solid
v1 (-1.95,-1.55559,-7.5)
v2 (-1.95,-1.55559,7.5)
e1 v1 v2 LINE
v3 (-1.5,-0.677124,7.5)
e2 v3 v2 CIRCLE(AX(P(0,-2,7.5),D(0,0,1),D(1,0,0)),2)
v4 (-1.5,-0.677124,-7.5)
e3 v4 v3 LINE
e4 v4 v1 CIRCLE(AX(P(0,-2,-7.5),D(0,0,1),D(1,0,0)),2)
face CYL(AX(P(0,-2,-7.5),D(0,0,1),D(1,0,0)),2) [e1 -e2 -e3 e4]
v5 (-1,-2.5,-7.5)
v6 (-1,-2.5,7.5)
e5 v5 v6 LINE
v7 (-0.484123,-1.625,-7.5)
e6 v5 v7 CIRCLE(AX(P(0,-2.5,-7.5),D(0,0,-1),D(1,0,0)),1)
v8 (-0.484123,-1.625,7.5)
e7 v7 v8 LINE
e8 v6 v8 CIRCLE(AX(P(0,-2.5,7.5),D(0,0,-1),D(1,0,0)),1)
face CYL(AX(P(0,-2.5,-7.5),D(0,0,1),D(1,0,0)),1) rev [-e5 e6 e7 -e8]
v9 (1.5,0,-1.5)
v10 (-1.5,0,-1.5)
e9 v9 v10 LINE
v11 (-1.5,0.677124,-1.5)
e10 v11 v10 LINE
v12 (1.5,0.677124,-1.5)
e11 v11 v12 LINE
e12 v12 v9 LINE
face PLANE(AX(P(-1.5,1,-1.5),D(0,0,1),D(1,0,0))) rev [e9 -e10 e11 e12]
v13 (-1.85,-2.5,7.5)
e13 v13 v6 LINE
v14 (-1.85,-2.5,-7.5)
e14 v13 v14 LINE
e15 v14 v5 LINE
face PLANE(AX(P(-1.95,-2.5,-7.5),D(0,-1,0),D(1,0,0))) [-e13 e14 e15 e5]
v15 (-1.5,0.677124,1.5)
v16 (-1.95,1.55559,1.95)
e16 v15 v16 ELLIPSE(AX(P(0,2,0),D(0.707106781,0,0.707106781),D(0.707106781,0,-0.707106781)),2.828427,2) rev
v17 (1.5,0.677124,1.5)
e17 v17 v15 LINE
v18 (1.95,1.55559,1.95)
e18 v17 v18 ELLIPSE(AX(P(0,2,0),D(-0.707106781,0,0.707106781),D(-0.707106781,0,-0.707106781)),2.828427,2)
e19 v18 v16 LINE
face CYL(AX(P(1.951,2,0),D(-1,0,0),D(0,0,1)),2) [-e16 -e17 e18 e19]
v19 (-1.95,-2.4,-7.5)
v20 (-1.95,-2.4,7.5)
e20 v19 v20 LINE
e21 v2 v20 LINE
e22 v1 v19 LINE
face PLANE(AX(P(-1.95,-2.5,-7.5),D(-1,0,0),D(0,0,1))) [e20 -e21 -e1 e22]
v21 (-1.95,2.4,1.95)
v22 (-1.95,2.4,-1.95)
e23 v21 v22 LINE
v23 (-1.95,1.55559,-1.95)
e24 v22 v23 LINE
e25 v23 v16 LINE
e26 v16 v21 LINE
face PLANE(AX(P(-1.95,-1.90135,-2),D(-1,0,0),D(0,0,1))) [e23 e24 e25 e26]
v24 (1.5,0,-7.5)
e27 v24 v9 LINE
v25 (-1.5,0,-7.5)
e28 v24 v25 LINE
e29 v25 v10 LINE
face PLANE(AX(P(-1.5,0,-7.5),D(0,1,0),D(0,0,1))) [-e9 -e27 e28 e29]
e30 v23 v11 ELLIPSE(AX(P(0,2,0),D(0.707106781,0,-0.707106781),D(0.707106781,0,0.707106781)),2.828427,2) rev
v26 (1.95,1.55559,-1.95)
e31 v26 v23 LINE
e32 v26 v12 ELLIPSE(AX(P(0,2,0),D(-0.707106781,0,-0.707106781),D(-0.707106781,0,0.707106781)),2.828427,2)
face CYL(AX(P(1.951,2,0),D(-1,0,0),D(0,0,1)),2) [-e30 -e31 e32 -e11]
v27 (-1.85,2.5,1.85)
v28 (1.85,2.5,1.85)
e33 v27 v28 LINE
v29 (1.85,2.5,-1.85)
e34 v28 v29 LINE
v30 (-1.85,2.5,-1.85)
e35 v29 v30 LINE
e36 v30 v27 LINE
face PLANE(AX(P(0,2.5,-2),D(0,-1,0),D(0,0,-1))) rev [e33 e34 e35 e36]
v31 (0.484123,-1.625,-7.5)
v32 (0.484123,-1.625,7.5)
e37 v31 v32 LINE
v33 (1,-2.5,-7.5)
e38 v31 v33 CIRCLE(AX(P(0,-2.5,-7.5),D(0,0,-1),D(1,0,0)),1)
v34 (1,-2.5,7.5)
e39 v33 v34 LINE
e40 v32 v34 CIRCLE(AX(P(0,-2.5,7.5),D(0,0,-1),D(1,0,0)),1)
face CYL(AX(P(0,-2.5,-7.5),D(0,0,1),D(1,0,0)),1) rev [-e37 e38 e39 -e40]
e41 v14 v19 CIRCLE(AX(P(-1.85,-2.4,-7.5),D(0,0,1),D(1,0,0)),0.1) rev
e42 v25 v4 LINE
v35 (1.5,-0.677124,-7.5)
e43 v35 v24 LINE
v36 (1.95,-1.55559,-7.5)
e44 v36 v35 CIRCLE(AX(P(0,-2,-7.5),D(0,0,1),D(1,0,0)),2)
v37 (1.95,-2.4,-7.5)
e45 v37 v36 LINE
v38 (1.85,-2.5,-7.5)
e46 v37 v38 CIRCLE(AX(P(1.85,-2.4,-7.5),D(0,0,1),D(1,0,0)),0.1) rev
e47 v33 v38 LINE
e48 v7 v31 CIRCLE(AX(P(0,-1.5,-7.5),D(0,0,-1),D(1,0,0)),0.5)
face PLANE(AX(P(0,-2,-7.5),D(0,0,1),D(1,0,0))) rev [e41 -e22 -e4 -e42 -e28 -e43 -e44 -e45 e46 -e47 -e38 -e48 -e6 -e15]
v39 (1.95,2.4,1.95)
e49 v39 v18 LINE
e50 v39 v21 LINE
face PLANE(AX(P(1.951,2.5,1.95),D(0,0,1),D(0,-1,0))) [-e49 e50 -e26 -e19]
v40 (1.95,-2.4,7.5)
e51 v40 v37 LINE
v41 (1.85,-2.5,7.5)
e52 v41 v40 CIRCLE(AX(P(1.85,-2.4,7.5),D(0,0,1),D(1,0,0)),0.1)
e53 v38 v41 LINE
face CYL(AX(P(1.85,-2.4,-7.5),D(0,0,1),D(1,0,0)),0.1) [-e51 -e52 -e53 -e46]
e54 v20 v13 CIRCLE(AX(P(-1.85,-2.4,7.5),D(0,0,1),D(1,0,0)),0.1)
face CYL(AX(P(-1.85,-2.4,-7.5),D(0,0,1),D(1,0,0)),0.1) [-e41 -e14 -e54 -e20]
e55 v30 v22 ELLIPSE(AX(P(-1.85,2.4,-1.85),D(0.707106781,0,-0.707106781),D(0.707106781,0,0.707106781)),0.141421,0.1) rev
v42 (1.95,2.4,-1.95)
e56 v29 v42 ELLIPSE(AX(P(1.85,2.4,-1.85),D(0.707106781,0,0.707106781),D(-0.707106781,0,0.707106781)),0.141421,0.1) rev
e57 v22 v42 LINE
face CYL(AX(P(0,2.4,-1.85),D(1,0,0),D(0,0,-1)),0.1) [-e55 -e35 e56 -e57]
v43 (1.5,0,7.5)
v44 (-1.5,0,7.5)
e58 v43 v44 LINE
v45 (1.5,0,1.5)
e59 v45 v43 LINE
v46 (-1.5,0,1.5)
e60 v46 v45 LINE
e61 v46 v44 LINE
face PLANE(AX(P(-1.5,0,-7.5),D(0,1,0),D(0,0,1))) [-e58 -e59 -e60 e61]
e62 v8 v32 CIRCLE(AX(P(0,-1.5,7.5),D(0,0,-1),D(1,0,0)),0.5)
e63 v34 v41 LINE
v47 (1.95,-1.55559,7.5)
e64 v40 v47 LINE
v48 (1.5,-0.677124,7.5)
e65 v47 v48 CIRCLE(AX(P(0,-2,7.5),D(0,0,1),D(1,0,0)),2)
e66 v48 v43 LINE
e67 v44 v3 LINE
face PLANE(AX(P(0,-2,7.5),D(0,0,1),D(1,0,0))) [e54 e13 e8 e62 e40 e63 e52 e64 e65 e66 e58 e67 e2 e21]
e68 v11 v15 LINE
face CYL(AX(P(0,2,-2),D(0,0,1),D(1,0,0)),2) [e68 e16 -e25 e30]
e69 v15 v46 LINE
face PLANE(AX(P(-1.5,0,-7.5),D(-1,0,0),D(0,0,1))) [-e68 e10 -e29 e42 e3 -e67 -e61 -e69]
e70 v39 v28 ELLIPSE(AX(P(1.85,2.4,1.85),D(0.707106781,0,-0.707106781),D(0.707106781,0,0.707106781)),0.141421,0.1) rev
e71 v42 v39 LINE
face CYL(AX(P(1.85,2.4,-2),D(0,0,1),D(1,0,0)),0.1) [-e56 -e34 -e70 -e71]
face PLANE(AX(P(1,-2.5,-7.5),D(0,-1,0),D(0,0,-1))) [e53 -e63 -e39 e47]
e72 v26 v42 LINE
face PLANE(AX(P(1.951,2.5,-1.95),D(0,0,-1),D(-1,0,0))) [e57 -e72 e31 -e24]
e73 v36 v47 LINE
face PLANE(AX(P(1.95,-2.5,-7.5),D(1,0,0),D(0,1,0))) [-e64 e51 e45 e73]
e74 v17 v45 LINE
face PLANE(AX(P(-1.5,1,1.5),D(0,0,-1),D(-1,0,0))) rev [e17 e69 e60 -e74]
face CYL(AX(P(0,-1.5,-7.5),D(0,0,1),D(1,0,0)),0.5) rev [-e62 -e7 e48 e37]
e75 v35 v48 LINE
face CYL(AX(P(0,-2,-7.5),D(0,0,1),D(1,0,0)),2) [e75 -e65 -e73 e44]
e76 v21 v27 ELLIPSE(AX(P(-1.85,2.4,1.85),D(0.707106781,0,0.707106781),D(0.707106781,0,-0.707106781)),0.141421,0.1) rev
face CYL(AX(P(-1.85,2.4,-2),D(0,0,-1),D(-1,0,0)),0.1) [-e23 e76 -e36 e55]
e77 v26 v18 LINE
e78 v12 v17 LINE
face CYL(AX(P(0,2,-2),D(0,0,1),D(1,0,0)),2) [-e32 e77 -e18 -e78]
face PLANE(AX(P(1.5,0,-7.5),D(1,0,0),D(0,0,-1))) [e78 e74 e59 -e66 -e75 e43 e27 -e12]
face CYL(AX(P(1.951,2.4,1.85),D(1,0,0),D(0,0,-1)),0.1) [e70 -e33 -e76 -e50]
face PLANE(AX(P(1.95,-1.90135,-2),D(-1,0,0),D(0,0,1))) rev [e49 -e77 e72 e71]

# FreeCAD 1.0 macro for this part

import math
import FreeCAD as App
import Part
import Sketcher

V = App.Vector
Q = App.Units.Quantity


def edges_at(feature, points):
    """Names of the edges that pass closest to the given points."""
    edges = feature.Shape.Edges
    near = lambda p: min(range(len(edges)), key=lambda i: edges[i].distToShape(Part.Vertex(*p))[0])
    return sorted({f"Edge{near(p) + 1}" for p in points})

doc = App.newDocument("Part")
body = doc.addObject("PartDesign::Body", "Body")

sketch1 = doc.addObject("Sketcher::SketchObject", "Sketch")
body.addObject(sketch1)
sketch1.AttachmentSupport = (doc.XY_Plane, [""])
sketch1.MapMode = "FlatFace"
sketch1.addGeometry([
    Part.LineSegment(V(-1.9, -2.5, 0), V(-1, -2.5, 0)),
    Part.ArcOfCircle(Part.Circle(V(0, -2.5, 0), V(0, 0, 1), 1), math.radians(119), math.radians(180)),
    Part.ArcOfCircle(Part.Circle(V(0, -1.5, 0), V(0, 0, 1), 0.5), math.radians(-14), math.radians(194)),
    Part.ArcOfCircle(Part.Circle(V(0, -2.5, 0), V(0, 0, 1), 1), math.radians(0), math.radians(61)),
    Part.LineSegment(V(1, -2.5, 0), V(1.9, -2.5, 0)),
    Part.LineSegment(V(1.9, -2.5, 0), V(1.9, -1.6, 0)),
    Part.ArcOfCircle(Part.Circle(V(0, -2, 0), V(0, 0, 1), 2), math.radians(13), math.radians(41)),
    Part.LineSegment(V(1.5, -0.7, 0), V(1.5, 0, 0)),
    Part.LineSegment(V(1.5, 0, 0), V(-1.5, 0, 0)),
    Part.LineSegment(V(-1.5, 0, 0), V(-1.5, -0.7, 0)),
    Part.ArcOfCircle(Part.Circle(V(0, -2, 0), V(0, 0, 1), 2), math.radians(139), math.radians(167)),
    Part.LineSegment(V(-1.9, -1.6, 0), V(-1.9, -2.5, 0)),
], False)
sketch1.addConstraint([
    Sketcher.Constraint("Coincident", 0, 2, 1, 2),
    Sketcher.Constraint("Coincident", 1, 1, 2, 2),
    Sketcher.Constraint("Coincident", 2, 1, 3, 2),
    Sketcher.Constraint("Coincident", 3, 1, 4, 1),
    Sketcher.Constraint("Coincident", 4, 2, 5, 1),
    Sketcher.Constraint("Coincident", 5, 2, 6, 1),
    Sketcher.Constraint("Coincident", 6, 2, 7, 1),
    Sketcher.Constraint("Coincident", 7, 2, 8, 1),
    Sketcher.Constraint("Coincident", 8, 2, 9, 1),
    Sketcher.Constraint("Coincident", 9, 2, 10, 1),
    Sketcher.Constraint("Coincident", 10, 2, 11, 1),
    Sketcher.Constraint("Coincident", 11, 2, 0, 1),
    Sketcher.Constraint("Horizontal", 0),
    Sketcher.Constraint("Horizontal", 4),
    Sketcher.Constraint("Vertical", 5),
    Sketcher.Constraint("Vertical", 7),
    Sketcher.Constraint("Horizontal", 8),
    Sketcher.Constraint("Vertical", 9),
    Sketcher.Constraint("Vertical", 11),
    Sketcher.Constraint("Coincident", 3, 3, 1, 3),
    Sketcher.Constraint("Coincident", 10, 3, 6, 3),
    Sketcher.Constraint("Equal", 1, 3),
    Sketcher.Constraint("Equal", 6, 10),
    Sketcher.Constraint("Symmetric", 7, 2, 8, 2, -1, 1),
    Sketcher.Constraint("Symmetric", 1, 1, 2, 1, -2),
    Sketcher.Constraint("Symmetric", 5, 2, 10, 2, -2),
    Sketcher.Constraint("Horizontal", 3, 3, 0, 2),
    Sketcher.Constraint("Horizontal", 0, 2, 3, 1),
    Sketcher.Constraint("Radius", 1, Q("1 mm")),
    Sketcher.Constraint("Radius", 6, Q("2 mm")),
    Sketcher.Constraint("Radius", 2, Q("0.5 mm")),
    Sketcher.Constraint("DistanceX", 8, 2, 8, 1, Q("3 mm")),
    Sketcher.Constraint("DistanceY", 6, 3, -1, 1, Q("2 mm")),
    Sketcher.Constraint("DistanceY", 1, 3, 2, 3, Q("1 mm")),
    Sketcher.Constraint("DistanceX", 0, 1, 0, 2, Q("0.95 mm")),
    Sketcher.Constraint("DistanceY", 1, 3, -1, 1, Q("2.5 mm")),
])
pad1 = doc.addObject("PartDesign::Pad", "Pad")
body.addObject(pad1)
pad1.Profile = sketch1
pad1.Type = "TwoLengths"
pad1.Length = 7.5
pad1.Length2 = 7.5

sketch2 = doc.addObject("Sketcher::SketchObject", "Sketch001")
body.addObject(sketch2)
sketch2.AttachmentSupport = (doc.XZ_Plane, [""])
sketch2.MapMode = "FlatFace"
sketch2.addGeometry([
    Part.LineSegment(V(1.5, 1.5, 0), V(1.5, -1.5, 0)),
    Part.LineSegment(V(1.5, -1.5, 0), V(-1.5, -1.5, 0)),
    Part.LineSegment(V(-1.5, -1.5, 0), V(-1.5, 1.5, 0)),
    Part.LineSegment(V(-1.5, 1.5, 0), V(1.5, 1.5, 0)),
], False)
sketch2.addConstraint([
    Sketcher.Constraint("Coincident", 0, 2, 1, 1),
    Sketcher.Constraint("Coincident", 1, 2, 2, 1),
    Sketcher.Constraint("Coincident", 2, 2, 3, 1),
    Sketcher.Constraint("Coincident", 3, 2, 0, 1),
    Sketcher.Constraint("Vertical", 0),
    Sketcher.Constraint("Horizontal", 1),
    Sketcher.Constraint("Vertical", 2),
    Sketcher.Constraint("Horizontal", 3),
    Sketcher.Constraint("Symmetric", 0, 2, 2, 2, -1, 1),
    Sketcher.Constraint("Equal", 3, 0),
    Sketcher.Constraint("DistanceX", 1, 2, 1, 1, Q("3 mm")),
])
pad2 = doc.addObject("PartDesign::Pad", "Pad001")
body.addObject(pad2)
pad2.Profile = sketch2
pad2.Length = 1
pad2.Reversed = True

sketch3 = doc.addObject("Sketcher::SketchObject", "Sketch002")
body.addObject(sketch3)
sketch3.AttachmentSupport = (doc.XY_Plane, [""])
sketch3.MapMode = "FlatFace"
sketch3.addGeometry([
    Part.LineSegment(V(1.9, 2.5, 0), V(-1.9, 2.5, 0)),
    Part.LineSegment(V(-1.9, 2.5, 0), V(-1.9, 1.6, 0)),
    Part.ArcOfCircle(Part.Circle(V(0, 2, 0), V(0, 0, 1), 2), math.radians(-167), math.radians(-139)),
    Part.LineSegment(V(-1.5, 0.7, 0), V(1.5, 0.7, 0)),
    Part.ArcOfCircle(Part.Circle(V(0, 2, 0), V(0, 0, 1), 2), math.radians(-41), math.radians(-13)),
    Part.LineSegment(V(1.9, 1.6, 0), V(1.9, 2.5, 0)),
], False)
sketch3.addConstraint([
    Sketcher.Constraint("Coincident", 0, 2, 1, 1),
    Sketcher.Constraint("Coincident", 1, 2, 2, 1),
    Sketcher.Constraint("Coincident", 2, 2, 3, 1),
    Sketcher.Constraint("Coincident", 3, 2, 4, 1),
    Sketcher.Constraint("Coincident", 4, 2, 5, 1),
    Sketcher.Constraint("Coincident", 5, 2, 0, 1),
    Sketcher.Constraint("Horizontal", 0),
    Sketcher.Constraint("Vertical", 1),
    Sketcher.Constraint("Horizontal", 3),
    Sketcher.Constraint("Vertical", 5),
    Sketcher.Constraint("Coincident", 4, 3, 2, 3),
    Sketcher.Constraint("Equal", 2, 4),
    Sketcher.Constraint("Symmetric", 1, 2, 4, 2, -2),
    Sketcher.Constraint("Radius", 2, Q("2 mm")),
    Sketcher.Constraint("DistanceX", 3, 1, 3, 2, Q("3 mm")),
    Sketcher.Constraint("DistanceX", 0, 2, 0, 1, Q("3.9 mm")),
    Sketcher.Constraint("DistanceY", -1, 1, 2, 3, Q("2 mm")),
    Sketcher.Constraint("DistanceY", -1, 1, 0, 2, Q("2.5 mm")),
])
pad3 = doc.addObject("PartDesign::Pad", "Pad002")
body.addObject(pad3)
pad3.Profile = sketch3
pad3.Type = "TwoLengths"
pad3.Length = 2
pad3.Length2 = 2

sketch4 = doc.addObject("Sketcher::SketchObject", "Sketch003")
body.addObject(sketch4)
sketch4.AttachmentSupport = (doc.YZ_Plane, [""])
sketch4.MapMode = "FlatFace"
sketch4.addGeometry([
    Part.LineSegment(V(2.5, -2, 0), V(2.5, -1.95, 0)),
    Part.LineSegment(V(2.5, -1.95, 0), V(1.56, -1.95, 0)),
    Part.ArcOfCircle(Part.Circle(V(2, 0, 0), V(0, 0, 1), 2), math.radians(-131), math.radians(-103)),
    Part.LineSegment(V(0.68, -1.5, 0), V(0.68, -2, 0)),
    Part.LineSegment(V(0.68, -2, 0), V(2.5, -2, 0)),
], False)
sketch4.addConstraint([
    Sketcher.Constraint("Coincident", 0, 2, 1, 1),
    Sketcher.Constraint("Coincident", 1, 2, 2, 2),
    Sketcher.Constraint("Coincident", 2, 1, 3, 1),
    Sketcher.Constraint("Coincident", 3, 2, 4, 1),
    Sketcher.Constraint("Coincident", 4, 2, 0, 1),
    Sketcher.Constraint("Vertical", 0),
    Sketcher.Constraint("Horizontal", 1),
    Sketcher.Constraint("Vertical", 3),
    Sketcher.Constraint("Horizontal", 4),
    Sketcher.Constraint("PointOnObject", 2, 3, -1),
    Sketcher.Constraint("Radius", 2, Q("2 mm")),
    Sketcher.Constraint("DistanceY", 3, 2, 3, 1, Q("0.5 mm")),
    Sketcher.Constraint("DistanceX", -1, 1, 2, 3, Q("2 mm")),
    Sketcher.Constraint("DistanceY", 3, 2, -1, 1, Q("2 mm")),
    Sketcher.Constraint("DistanceY", 0, 1, 0, 2, Q("0.05 mm")),
    Sketcher.Constraint("DistanceX", -1, 1, 0, 2, Q("2.5 mm")),
])
pocket1 = doc.addObject("PartDesign::Pocket", "Pocket")
body.addObject(pocket1)
pocket1.Profile = sketch4
pocket1.Type = "UpToFirst"

sketch5 = doc.addObject("Sketcher::SketchObject", "Sketch004")
body.addObject(sketch5)
sketch5.AttachmentSupport = (doc.YZ_Plane, [""])
sketch5.MapMode = "FlatFace"
sketch5.addGeometry([
    Part.LineSegment(V(1.56, 1.95, 0), V(2.5, 1.95, 0)),
    Part.LineSegment(V(2.5, 1.95, 0), V(2.5, 2, 0)),
    Part.LineSegment(V(2.5, 2, 0), V(0.68, 2, 0)),
    Part.LineSegment(V(0.68, 2, 0), V(0.68, 1.5, 0)),
    Part.ArcOfCircle(Part.Circle(V(2, 0, 0), V(0, 0, 1), 2), math.radians(103), math.radians(131)),
], False)
sketch5.addConstraint([
    Sketcher.Constraint("Coincident", 0, 2, 1, 1),
    Sketcher.Constraint("Coincident", 1, 2, 2, 1),
    Sketcher.Constraint("Coincident", 2, 2, 3, 1),
    Sketcher.Constraint("Coincident", 3, 2, 4, 2),
    Sketcher.Constraint("Coincident", 4, 1, 0, 1),
    Sketcher.Constraint("Horizontal", 0),
    Sketcher.Constraint("Vertical", 1),
    Sketcher.Constraint("Horizontal", 2),
    Sketcher.Constraint("Vertical", 3),
    Sketcher.Constraint("PointOnObject", 4, 3, -1),
    Sketcher.Constraint("Radius", 4, Q("2 mm")),
    Sketcher.Constraint("DistanceY", 3, 2, 3, 1, Q("0.5 mm")),
    Sketcher.Constraint("DistanceX", -1, 1, 4, 3, Q("2 mm")),
    Sketcher.Constraint("DistanceY", -1, 1, 1, 2, Q("2 mm")),
    Sketcher.Constraint("DistanceY", 1, 1, 1, 2, Q("0.05 mm")),
    Sketcher.Constraint("DistanceX", -1, 1, 0, 2, Q("2.5 mm")),
])
pocket2 = doc.addObject("PartDesign::Pocket", "Pocket001")
body.addObject(pocket2)
pocket2.Profile = sketch5
pocket2.Type = "UpToFirst"

sketch6 = doc.addObject("Sketcher::SketchObject", "Sketch005")
body.addObject(sketch6)
sketch6.AttachmentSupport = (doc.YZ_Plane, [""])
sketch6.MapMode = "FlatFace"
sketch6.addGeometry([
    Part.LineSegment(V(2.5, -2, 0), V(2.5, -1.95, 0)),
    Part.LineSegment(V(2.5, -1.95, 0), V(1.56, -1.95, 0)),
    Part.ArcOfCircle(Part.Circle(V(2, 0, 0), V(0, 0, 1), 2), math.radians(-131), math.radians(-103)),
    Part.LineSegment(V(0.68, -1.5, 0), V(0.68, -2, 0)),
    Part.LineSegment(V(0.68, -2, 0), V(2.5, -2, 0)),
], False)
sketch6.addConstraint([
    Sketcher.Constraint("Coincident", 0, 2, 1, 1),
    Sketcher.Constraint("Coincident", 1, 2, 2, 2),
    Sketcher.Constraint("Coincident", 2, 1, 3, 1),
    Sketcher.Constraint("Coincident", 3, 2, 4, 1),
    Sketcher.Constraint("Coincident", 4, 2, 0, 1),
    Sketcher.Constraint("Vertical", 0),
    Sketcher.Constraint("Horizontal", 1),
    Sketcher.Constraint("Vertical", 3),
    Sketcher.Constraint("Horizontal", 4),
    Sketcher.Constraint("PointOnObject", 2, 3, -1),
    Sketcher.Constraint("Radius", 2, Q("2 mm")),
    Sketcher.Constraint("DistanceY", 3, 2, 3, 1, Q("0.5 mm")),
    Sketcher.Constraint("DistanceX", -1, 1, 2, 3, Q("2 mm")),
    Sketcher.Constraint("DistanceY", 3, 2, -1, 1, Q("2 mm")),
    Sketcher.Constraint("DistanceY", 0, 1, 0, 2, Q("0.05 mm")),
    Sketcher.Constraint("DistanceX", -1, 1, 0, 2, Q("2.5 mm")),
])
pocket3 = doc.addObject("PartDesign::Pocket", "Pocket002")
body.addObject(pocket3)
pocket3.Profile = sketch6
pocket3.Type = "UpToFirst"
pocket3.Reversed = True

sketch7 = doc.addObject("Sketcher::SketchObject", "Sketch006")
body.addObject(sketch7)
sketch7.AttachmentSupport = (doc.YZ_Plane, [""])
sketch7.MapMode = "FlatFace"
sketch7.addGeometry([
    Part.LineSegment(V(1.56, 1.95, 0), V(2.5, 1.95, 0)),
    Part.LineSegment(V(2.5, 1.95, 0), V(2.5, 2, 0)),
    Part.LineSegment(V(2.5, 2, 0), V(0.68, 2, 0)),
    Part.LineSegment(V(0.68, 2, 0), V(0.68, 1.5, 0)),
    Part.ArcOfCircle(Part.Circle(V(2, 0, 0), V(0, 0, 1), 2), math.radians(103), math.radians(131)),
], False)
sketch7.addConstraint([
    Sketcher.Constraint("Coincident", 0, 2, 1, 1),
    Sketcher.Constraint("Coincident", 1, 2, 2, 1),
    Sketcher.Constraint("Coincident", 2, 2, 3, 1),
    Sketcher.Constraint("Coincident", 3, 2, 4, 2),
    Sketcher.Constraint("Coincident", 4, 1, 0, 1),
    Sketcher.Constraint("Horizontal", 0),
    Sketcher.Constraint("Vertical", 1),
    Sketcher.Constraint("Horizontal", 2),
    Sketcher.Constraint("Vertical", 3),
    Sketcher.Constraint("PointOnObject", 4, 3, -1),
    Sketcher.Constraint("Radius", 4, Q("2 mm")),
    Sketcher.Constraint("DistanceY", 3, 2, 3, 1, Q("0.5 mm")),
    Sketcher.Constraint("DistanceX", -1, 1, 4, 3, Q("2 mm")),
    Sketcher.Constraint("DistanceY", -1, 1, 1, 2, Q("2 mm")),
    Sketcher.Constraint("DistanceY", 1, 1, 1, 2, Q("0.05 mm")),
    Sketcher.Constraint("DistanceX", -1, 1, 0, 2, Q("2.5 mm")),
])
pocket4 = doc.addObject("PartDesign::Pocket", "Pocket003")
body.addObject(pocket4)
pocket4.Profile = sketch7
pocket4.Type = "UpToFirst"
pocket4.Reversed = True
doc.recompute()

fillet = doc.addObject("PartDesign::Fillet", "Fillet")
body.addObject(fillet)
fillet.Base = (pocket4, edges_at(pocket4, [
    (0, 2.5, 1.95),
    (1.95, -2.5, 0),
    (-1.95, -2.5, 0),
    (1.95, 2.5, 0),
    (-1.95, 2.5, 0),
    (0, 2.5, -1.95),
]))
fillet.Radius = 0.1

doc.recompute()
